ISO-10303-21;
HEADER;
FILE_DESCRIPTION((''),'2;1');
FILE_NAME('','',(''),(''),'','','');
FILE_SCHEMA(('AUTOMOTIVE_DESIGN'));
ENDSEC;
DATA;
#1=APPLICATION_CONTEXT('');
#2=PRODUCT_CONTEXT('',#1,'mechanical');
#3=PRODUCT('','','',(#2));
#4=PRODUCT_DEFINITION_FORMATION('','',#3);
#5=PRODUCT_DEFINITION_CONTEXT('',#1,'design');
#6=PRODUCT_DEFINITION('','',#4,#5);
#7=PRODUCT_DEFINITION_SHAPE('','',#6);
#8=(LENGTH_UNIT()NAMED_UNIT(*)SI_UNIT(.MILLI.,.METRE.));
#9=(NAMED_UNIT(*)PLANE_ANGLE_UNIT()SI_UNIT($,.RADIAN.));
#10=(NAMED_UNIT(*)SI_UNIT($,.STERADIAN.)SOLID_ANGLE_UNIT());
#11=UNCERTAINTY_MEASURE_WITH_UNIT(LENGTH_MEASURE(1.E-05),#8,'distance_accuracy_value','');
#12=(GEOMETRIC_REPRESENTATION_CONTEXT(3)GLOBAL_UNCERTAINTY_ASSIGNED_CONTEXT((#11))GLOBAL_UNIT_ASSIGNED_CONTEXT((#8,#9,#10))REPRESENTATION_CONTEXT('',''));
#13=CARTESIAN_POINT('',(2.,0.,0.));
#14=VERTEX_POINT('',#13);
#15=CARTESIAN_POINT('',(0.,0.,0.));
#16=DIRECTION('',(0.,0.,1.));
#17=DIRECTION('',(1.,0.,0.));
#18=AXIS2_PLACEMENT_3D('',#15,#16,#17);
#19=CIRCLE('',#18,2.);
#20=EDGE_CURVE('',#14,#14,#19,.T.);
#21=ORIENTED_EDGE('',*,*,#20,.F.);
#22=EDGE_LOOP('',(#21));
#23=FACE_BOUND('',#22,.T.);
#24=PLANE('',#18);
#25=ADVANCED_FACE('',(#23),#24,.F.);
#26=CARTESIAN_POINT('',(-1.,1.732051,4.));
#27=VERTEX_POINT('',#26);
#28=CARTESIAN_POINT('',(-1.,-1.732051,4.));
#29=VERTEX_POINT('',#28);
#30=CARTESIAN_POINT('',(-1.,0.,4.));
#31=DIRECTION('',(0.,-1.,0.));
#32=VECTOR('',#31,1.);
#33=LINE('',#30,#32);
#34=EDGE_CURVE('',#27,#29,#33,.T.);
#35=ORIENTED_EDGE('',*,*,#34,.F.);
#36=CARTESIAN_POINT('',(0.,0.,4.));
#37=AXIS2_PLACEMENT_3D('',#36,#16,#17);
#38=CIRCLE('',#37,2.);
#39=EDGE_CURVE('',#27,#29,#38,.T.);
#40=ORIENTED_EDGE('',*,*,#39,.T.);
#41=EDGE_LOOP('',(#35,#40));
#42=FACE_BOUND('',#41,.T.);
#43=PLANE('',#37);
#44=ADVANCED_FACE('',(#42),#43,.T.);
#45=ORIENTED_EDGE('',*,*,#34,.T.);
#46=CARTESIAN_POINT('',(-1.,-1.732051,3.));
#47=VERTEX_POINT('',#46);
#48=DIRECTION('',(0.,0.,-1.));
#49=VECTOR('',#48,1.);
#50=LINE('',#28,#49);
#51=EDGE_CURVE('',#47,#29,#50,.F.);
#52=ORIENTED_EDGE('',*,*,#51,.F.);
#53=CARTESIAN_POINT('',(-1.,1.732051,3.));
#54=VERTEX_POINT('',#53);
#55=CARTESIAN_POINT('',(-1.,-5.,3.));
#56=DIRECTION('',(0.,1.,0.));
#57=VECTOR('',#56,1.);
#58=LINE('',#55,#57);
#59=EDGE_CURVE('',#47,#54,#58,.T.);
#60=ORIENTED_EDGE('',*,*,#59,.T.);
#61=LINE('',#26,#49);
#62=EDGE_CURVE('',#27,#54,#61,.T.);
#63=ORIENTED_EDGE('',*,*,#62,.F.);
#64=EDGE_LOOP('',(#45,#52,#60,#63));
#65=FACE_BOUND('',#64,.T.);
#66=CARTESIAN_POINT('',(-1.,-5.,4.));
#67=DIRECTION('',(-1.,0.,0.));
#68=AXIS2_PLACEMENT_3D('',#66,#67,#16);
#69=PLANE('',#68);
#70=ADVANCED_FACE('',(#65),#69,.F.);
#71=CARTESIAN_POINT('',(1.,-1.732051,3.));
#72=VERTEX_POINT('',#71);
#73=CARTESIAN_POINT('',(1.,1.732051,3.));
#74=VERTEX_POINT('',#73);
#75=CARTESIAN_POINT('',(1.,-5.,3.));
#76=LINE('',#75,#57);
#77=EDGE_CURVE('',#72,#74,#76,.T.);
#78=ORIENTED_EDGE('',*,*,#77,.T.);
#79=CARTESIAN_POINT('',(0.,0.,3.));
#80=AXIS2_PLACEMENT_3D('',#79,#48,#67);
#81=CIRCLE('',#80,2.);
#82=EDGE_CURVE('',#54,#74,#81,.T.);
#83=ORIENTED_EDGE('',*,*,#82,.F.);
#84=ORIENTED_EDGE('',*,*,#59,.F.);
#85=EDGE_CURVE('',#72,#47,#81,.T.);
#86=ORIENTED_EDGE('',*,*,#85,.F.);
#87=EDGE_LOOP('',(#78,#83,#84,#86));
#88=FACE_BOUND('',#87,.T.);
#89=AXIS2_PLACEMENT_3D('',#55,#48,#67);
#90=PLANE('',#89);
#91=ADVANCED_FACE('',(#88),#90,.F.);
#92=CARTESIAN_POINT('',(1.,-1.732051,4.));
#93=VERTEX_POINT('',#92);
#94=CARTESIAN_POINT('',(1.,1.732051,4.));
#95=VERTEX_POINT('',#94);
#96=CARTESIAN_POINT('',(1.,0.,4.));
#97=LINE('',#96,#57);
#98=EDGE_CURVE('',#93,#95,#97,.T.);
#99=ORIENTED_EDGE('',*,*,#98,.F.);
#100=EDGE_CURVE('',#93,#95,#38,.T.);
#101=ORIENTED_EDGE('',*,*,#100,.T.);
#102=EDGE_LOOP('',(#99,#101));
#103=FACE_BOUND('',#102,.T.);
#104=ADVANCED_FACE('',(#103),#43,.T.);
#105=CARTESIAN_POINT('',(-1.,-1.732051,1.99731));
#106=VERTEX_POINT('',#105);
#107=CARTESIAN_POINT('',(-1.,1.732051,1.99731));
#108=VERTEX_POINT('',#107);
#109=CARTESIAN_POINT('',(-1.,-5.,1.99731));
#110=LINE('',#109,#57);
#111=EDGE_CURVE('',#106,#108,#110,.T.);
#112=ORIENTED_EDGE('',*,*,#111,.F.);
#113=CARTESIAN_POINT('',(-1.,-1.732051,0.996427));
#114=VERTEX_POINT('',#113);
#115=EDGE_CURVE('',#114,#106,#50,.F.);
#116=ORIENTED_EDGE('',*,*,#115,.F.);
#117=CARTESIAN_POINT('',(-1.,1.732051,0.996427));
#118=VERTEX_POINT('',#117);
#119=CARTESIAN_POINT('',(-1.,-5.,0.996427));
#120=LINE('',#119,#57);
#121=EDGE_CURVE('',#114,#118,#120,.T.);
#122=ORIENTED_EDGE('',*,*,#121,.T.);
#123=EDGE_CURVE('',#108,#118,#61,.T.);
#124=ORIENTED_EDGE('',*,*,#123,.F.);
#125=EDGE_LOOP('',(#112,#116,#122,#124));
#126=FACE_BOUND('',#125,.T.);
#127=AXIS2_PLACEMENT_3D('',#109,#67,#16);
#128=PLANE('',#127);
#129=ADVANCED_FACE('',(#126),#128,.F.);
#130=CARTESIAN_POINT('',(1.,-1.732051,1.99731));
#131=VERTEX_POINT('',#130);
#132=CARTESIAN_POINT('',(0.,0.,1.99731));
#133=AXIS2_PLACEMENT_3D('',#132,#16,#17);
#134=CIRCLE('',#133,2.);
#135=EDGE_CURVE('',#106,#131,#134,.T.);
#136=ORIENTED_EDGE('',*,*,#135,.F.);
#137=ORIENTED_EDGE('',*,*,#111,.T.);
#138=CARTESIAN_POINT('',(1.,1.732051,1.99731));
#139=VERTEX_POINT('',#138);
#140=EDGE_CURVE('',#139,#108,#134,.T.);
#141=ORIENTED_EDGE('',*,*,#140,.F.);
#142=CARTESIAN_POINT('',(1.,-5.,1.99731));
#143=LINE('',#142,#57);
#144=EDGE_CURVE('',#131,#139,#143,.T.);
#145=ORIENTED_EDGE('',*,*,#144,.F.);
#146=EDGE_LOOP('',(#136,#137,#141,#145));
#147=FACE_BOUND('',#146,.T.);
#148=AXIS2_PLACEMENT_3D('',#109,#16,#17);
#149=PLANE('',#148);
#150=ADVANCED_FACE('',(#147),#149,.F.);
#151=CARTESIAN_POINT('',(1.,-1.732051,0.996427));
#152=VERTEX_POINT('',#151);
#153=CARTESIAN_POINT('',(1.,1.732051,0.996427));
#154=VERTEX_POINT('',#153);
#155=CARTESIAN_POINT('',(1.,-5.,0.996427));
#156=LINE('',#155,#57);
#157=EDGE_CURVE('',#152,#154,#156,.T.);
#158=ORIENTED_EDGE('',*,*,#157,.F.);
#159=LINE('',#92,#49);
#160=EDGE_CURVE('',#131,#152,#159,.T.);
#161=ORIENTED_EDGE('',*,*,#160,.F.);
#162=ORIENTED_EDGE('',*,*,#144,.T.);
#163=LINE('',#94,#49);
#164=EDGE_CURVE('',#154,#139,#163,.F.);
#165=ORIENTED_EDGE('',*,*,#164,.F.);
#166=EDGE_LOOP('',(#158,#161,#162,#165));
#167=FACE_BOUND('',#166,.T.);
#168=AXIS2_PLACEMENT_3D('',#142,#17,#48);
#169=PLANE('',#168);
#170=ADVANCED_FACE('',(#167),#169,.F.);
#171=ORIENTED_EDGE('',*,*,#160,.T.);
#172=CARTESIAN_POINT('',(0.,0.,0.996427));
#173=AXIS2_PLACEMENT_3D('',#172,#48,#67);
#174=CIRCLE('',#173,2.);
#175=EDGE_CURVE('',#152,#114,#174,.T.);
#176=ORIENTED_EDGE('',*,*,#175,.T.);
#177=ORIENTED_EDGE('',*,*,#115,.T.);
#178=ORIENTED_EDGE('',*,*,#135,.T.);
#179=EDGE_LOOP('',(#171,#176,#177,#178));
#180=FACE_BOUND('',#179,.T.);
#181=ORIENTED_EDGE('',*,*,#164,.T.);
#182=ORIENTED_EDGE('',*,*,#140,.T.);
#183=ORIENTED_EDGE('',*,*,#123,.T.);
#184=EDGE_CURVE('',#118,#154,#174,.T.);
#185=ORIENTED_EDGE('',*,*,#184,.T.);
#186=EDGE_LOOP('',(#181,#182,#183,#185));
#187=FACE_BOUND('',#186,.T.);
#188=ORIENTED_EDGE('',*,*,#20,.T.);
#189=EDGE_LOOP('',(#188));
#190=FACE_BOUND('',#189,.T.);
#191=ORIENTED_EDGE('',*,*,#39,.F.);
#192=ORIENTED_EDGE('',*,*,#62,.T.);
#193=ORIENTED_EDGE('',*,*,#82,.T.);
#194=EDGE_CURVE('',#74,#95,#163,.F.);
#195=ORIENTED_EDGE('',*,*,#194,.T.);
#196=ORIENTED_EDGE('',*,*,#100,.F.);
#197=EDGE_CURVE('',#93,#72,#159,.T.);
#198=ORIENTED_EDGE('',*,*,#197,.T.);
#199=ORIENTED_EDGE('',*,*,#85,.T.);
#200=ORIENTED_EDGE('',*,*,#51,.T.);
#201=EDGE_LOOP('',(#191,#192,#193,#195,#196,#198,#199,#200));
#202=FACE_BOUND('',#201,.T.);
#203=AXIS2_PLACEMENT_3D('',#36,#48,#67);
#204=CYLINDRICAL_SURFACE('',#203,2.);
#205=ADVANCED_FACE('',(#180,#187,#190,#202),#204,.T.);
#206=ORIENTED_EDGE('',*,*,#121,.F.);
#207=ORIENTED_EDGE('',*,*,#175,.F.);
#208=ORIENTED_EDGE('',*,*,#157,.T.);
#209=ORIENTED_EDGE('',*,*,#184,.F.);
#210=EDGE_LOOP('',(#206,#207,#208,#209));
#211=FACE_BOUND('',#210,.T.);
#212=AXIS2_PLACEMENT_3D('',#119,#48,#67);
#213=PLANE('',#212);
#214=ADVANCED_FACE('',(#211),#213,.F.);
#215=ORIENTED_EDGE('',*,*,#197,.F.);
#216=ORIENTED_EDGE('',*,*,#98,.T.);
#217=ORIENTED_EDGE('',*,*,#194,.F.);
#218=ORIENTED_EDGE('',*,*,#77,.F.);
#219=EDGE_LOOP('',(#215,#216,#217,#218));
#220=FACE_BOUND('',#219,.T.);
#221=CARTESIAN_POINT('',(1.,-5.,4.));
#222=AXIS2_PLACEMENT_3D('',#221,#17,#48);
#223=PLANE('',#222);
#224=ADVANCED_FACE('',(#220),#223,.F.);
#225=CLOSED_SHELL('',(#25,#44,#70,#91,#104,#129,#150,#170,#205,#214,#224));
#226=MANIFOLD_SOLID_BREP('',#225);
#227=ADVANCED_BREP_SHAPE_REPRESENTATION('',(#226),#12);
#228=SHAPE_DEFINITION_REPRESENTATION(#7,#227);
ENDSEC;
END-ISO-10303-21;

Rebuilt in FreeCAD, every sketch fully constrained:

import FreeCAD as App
import Part
import Sketcher


def add_polygon(sketch, points):
    """Adds a closed chain of lines whose ends are joined by coincident constraints."""
    first, n = sketch.GeometryCount, len(points)
    for a, b in zip(points, points[1:] + points[:1]):
        sketch.addGeometry(Part.LineSegment(App.Vector(*a, 0), App.Vector(*b, 0)), False)
    for i in range(n):
        sketch.addConstraint(Sketcher.Constraint("Coincident", first + i, 2, first + (i + 1) % n, 1))

doc = App.newDocument("Part")
body = doc.addObject("PartDesign::Body", "Body")

# Sketch on XY plane
sketch1 = body.newObject("Sketcher::SketchObject", "Sketch")
sketch1.AttachmentSupport = (doc.getObject("XY_Plane"), [""])
sketch1.MapMode = "FlatFace"
sketch1.addGeometry(Part.Circle(App.Vector(0, 0, 0), App.Vector(0, 0, 1), 2), False)
sketch1.addConstraint([
    Sketcher.Constraint("Coincident", 0, 3, -1, 1),
    Sketcher.Constraint("Diameter", 0, 4.0),
])
pad1 = body.newObject("PartDesign::Pad", "Pad")
pad1.Profile = sketch1
pad1.Length = 4

# Sketch on XZ plane
sketch2 = body.newObject("Sketcher::SketchObject", "Sketch001")
sketch2.AttachmentSupport = (doc.getObject("XZ_Plane"), [""])
sketch2.MapMode = "FlatFace"
add_polygon(sketch2, [(-1, 3), (-1, 4), (1, 4), (1, 3)])  # lines 0-3
add_polygon(sketch2, [(-1, 1), (-1, 2), (1, 2), (1, 1)])  # lines 4-7
sketch2.addConstraint([
    Sketcher.Constraint("Vertical", 0),
    Sketcher.Constraint("Horizontal", 1),
    Sketcher.Constraint("Vertical", 2),
    Sketcher.Constraint("Horizontal", 3),
    Sketcher.Constraint("Vertical", 4),
    Sketcher.Constraint("Horizontal", 5),
    Sketcher.Constraint("Vertical", 6),
    Sketcher.Constraint("Horizontal", 7),
    Sketcher.Constraint("Vertical", 3, 2, 4, 2),
    Sketcher.Constraint("Vertical", 2, 2, 5, 2),
    Sketcher.Constraint("DistanceX", 1, 1, 1, 2, 2.0),
    Sketcher.Constraint("DistanceY", 0, 1, 0, 2, 1.0),
    Sketcher.Constraint("DistanceX", 0, 2, -1, 1, 1.0),
    Sketcher.Constraint("DistanceY", -1, 1, 0, 2, 4.0),
    Sketcher.Constraint("DistanceY", 4, 1, 4, 2, 1.000883),
    Sketcher.Constraint("DistanceY", -1, 1, 4, 2, 1.99731),
])
pocket1 = body.newObject("PartDesign::Pocket", "Pocket")
pocket1.Profile = sketch2
pocket1.Length = 10
pocket1.Midplane = True

doc.recompute()
